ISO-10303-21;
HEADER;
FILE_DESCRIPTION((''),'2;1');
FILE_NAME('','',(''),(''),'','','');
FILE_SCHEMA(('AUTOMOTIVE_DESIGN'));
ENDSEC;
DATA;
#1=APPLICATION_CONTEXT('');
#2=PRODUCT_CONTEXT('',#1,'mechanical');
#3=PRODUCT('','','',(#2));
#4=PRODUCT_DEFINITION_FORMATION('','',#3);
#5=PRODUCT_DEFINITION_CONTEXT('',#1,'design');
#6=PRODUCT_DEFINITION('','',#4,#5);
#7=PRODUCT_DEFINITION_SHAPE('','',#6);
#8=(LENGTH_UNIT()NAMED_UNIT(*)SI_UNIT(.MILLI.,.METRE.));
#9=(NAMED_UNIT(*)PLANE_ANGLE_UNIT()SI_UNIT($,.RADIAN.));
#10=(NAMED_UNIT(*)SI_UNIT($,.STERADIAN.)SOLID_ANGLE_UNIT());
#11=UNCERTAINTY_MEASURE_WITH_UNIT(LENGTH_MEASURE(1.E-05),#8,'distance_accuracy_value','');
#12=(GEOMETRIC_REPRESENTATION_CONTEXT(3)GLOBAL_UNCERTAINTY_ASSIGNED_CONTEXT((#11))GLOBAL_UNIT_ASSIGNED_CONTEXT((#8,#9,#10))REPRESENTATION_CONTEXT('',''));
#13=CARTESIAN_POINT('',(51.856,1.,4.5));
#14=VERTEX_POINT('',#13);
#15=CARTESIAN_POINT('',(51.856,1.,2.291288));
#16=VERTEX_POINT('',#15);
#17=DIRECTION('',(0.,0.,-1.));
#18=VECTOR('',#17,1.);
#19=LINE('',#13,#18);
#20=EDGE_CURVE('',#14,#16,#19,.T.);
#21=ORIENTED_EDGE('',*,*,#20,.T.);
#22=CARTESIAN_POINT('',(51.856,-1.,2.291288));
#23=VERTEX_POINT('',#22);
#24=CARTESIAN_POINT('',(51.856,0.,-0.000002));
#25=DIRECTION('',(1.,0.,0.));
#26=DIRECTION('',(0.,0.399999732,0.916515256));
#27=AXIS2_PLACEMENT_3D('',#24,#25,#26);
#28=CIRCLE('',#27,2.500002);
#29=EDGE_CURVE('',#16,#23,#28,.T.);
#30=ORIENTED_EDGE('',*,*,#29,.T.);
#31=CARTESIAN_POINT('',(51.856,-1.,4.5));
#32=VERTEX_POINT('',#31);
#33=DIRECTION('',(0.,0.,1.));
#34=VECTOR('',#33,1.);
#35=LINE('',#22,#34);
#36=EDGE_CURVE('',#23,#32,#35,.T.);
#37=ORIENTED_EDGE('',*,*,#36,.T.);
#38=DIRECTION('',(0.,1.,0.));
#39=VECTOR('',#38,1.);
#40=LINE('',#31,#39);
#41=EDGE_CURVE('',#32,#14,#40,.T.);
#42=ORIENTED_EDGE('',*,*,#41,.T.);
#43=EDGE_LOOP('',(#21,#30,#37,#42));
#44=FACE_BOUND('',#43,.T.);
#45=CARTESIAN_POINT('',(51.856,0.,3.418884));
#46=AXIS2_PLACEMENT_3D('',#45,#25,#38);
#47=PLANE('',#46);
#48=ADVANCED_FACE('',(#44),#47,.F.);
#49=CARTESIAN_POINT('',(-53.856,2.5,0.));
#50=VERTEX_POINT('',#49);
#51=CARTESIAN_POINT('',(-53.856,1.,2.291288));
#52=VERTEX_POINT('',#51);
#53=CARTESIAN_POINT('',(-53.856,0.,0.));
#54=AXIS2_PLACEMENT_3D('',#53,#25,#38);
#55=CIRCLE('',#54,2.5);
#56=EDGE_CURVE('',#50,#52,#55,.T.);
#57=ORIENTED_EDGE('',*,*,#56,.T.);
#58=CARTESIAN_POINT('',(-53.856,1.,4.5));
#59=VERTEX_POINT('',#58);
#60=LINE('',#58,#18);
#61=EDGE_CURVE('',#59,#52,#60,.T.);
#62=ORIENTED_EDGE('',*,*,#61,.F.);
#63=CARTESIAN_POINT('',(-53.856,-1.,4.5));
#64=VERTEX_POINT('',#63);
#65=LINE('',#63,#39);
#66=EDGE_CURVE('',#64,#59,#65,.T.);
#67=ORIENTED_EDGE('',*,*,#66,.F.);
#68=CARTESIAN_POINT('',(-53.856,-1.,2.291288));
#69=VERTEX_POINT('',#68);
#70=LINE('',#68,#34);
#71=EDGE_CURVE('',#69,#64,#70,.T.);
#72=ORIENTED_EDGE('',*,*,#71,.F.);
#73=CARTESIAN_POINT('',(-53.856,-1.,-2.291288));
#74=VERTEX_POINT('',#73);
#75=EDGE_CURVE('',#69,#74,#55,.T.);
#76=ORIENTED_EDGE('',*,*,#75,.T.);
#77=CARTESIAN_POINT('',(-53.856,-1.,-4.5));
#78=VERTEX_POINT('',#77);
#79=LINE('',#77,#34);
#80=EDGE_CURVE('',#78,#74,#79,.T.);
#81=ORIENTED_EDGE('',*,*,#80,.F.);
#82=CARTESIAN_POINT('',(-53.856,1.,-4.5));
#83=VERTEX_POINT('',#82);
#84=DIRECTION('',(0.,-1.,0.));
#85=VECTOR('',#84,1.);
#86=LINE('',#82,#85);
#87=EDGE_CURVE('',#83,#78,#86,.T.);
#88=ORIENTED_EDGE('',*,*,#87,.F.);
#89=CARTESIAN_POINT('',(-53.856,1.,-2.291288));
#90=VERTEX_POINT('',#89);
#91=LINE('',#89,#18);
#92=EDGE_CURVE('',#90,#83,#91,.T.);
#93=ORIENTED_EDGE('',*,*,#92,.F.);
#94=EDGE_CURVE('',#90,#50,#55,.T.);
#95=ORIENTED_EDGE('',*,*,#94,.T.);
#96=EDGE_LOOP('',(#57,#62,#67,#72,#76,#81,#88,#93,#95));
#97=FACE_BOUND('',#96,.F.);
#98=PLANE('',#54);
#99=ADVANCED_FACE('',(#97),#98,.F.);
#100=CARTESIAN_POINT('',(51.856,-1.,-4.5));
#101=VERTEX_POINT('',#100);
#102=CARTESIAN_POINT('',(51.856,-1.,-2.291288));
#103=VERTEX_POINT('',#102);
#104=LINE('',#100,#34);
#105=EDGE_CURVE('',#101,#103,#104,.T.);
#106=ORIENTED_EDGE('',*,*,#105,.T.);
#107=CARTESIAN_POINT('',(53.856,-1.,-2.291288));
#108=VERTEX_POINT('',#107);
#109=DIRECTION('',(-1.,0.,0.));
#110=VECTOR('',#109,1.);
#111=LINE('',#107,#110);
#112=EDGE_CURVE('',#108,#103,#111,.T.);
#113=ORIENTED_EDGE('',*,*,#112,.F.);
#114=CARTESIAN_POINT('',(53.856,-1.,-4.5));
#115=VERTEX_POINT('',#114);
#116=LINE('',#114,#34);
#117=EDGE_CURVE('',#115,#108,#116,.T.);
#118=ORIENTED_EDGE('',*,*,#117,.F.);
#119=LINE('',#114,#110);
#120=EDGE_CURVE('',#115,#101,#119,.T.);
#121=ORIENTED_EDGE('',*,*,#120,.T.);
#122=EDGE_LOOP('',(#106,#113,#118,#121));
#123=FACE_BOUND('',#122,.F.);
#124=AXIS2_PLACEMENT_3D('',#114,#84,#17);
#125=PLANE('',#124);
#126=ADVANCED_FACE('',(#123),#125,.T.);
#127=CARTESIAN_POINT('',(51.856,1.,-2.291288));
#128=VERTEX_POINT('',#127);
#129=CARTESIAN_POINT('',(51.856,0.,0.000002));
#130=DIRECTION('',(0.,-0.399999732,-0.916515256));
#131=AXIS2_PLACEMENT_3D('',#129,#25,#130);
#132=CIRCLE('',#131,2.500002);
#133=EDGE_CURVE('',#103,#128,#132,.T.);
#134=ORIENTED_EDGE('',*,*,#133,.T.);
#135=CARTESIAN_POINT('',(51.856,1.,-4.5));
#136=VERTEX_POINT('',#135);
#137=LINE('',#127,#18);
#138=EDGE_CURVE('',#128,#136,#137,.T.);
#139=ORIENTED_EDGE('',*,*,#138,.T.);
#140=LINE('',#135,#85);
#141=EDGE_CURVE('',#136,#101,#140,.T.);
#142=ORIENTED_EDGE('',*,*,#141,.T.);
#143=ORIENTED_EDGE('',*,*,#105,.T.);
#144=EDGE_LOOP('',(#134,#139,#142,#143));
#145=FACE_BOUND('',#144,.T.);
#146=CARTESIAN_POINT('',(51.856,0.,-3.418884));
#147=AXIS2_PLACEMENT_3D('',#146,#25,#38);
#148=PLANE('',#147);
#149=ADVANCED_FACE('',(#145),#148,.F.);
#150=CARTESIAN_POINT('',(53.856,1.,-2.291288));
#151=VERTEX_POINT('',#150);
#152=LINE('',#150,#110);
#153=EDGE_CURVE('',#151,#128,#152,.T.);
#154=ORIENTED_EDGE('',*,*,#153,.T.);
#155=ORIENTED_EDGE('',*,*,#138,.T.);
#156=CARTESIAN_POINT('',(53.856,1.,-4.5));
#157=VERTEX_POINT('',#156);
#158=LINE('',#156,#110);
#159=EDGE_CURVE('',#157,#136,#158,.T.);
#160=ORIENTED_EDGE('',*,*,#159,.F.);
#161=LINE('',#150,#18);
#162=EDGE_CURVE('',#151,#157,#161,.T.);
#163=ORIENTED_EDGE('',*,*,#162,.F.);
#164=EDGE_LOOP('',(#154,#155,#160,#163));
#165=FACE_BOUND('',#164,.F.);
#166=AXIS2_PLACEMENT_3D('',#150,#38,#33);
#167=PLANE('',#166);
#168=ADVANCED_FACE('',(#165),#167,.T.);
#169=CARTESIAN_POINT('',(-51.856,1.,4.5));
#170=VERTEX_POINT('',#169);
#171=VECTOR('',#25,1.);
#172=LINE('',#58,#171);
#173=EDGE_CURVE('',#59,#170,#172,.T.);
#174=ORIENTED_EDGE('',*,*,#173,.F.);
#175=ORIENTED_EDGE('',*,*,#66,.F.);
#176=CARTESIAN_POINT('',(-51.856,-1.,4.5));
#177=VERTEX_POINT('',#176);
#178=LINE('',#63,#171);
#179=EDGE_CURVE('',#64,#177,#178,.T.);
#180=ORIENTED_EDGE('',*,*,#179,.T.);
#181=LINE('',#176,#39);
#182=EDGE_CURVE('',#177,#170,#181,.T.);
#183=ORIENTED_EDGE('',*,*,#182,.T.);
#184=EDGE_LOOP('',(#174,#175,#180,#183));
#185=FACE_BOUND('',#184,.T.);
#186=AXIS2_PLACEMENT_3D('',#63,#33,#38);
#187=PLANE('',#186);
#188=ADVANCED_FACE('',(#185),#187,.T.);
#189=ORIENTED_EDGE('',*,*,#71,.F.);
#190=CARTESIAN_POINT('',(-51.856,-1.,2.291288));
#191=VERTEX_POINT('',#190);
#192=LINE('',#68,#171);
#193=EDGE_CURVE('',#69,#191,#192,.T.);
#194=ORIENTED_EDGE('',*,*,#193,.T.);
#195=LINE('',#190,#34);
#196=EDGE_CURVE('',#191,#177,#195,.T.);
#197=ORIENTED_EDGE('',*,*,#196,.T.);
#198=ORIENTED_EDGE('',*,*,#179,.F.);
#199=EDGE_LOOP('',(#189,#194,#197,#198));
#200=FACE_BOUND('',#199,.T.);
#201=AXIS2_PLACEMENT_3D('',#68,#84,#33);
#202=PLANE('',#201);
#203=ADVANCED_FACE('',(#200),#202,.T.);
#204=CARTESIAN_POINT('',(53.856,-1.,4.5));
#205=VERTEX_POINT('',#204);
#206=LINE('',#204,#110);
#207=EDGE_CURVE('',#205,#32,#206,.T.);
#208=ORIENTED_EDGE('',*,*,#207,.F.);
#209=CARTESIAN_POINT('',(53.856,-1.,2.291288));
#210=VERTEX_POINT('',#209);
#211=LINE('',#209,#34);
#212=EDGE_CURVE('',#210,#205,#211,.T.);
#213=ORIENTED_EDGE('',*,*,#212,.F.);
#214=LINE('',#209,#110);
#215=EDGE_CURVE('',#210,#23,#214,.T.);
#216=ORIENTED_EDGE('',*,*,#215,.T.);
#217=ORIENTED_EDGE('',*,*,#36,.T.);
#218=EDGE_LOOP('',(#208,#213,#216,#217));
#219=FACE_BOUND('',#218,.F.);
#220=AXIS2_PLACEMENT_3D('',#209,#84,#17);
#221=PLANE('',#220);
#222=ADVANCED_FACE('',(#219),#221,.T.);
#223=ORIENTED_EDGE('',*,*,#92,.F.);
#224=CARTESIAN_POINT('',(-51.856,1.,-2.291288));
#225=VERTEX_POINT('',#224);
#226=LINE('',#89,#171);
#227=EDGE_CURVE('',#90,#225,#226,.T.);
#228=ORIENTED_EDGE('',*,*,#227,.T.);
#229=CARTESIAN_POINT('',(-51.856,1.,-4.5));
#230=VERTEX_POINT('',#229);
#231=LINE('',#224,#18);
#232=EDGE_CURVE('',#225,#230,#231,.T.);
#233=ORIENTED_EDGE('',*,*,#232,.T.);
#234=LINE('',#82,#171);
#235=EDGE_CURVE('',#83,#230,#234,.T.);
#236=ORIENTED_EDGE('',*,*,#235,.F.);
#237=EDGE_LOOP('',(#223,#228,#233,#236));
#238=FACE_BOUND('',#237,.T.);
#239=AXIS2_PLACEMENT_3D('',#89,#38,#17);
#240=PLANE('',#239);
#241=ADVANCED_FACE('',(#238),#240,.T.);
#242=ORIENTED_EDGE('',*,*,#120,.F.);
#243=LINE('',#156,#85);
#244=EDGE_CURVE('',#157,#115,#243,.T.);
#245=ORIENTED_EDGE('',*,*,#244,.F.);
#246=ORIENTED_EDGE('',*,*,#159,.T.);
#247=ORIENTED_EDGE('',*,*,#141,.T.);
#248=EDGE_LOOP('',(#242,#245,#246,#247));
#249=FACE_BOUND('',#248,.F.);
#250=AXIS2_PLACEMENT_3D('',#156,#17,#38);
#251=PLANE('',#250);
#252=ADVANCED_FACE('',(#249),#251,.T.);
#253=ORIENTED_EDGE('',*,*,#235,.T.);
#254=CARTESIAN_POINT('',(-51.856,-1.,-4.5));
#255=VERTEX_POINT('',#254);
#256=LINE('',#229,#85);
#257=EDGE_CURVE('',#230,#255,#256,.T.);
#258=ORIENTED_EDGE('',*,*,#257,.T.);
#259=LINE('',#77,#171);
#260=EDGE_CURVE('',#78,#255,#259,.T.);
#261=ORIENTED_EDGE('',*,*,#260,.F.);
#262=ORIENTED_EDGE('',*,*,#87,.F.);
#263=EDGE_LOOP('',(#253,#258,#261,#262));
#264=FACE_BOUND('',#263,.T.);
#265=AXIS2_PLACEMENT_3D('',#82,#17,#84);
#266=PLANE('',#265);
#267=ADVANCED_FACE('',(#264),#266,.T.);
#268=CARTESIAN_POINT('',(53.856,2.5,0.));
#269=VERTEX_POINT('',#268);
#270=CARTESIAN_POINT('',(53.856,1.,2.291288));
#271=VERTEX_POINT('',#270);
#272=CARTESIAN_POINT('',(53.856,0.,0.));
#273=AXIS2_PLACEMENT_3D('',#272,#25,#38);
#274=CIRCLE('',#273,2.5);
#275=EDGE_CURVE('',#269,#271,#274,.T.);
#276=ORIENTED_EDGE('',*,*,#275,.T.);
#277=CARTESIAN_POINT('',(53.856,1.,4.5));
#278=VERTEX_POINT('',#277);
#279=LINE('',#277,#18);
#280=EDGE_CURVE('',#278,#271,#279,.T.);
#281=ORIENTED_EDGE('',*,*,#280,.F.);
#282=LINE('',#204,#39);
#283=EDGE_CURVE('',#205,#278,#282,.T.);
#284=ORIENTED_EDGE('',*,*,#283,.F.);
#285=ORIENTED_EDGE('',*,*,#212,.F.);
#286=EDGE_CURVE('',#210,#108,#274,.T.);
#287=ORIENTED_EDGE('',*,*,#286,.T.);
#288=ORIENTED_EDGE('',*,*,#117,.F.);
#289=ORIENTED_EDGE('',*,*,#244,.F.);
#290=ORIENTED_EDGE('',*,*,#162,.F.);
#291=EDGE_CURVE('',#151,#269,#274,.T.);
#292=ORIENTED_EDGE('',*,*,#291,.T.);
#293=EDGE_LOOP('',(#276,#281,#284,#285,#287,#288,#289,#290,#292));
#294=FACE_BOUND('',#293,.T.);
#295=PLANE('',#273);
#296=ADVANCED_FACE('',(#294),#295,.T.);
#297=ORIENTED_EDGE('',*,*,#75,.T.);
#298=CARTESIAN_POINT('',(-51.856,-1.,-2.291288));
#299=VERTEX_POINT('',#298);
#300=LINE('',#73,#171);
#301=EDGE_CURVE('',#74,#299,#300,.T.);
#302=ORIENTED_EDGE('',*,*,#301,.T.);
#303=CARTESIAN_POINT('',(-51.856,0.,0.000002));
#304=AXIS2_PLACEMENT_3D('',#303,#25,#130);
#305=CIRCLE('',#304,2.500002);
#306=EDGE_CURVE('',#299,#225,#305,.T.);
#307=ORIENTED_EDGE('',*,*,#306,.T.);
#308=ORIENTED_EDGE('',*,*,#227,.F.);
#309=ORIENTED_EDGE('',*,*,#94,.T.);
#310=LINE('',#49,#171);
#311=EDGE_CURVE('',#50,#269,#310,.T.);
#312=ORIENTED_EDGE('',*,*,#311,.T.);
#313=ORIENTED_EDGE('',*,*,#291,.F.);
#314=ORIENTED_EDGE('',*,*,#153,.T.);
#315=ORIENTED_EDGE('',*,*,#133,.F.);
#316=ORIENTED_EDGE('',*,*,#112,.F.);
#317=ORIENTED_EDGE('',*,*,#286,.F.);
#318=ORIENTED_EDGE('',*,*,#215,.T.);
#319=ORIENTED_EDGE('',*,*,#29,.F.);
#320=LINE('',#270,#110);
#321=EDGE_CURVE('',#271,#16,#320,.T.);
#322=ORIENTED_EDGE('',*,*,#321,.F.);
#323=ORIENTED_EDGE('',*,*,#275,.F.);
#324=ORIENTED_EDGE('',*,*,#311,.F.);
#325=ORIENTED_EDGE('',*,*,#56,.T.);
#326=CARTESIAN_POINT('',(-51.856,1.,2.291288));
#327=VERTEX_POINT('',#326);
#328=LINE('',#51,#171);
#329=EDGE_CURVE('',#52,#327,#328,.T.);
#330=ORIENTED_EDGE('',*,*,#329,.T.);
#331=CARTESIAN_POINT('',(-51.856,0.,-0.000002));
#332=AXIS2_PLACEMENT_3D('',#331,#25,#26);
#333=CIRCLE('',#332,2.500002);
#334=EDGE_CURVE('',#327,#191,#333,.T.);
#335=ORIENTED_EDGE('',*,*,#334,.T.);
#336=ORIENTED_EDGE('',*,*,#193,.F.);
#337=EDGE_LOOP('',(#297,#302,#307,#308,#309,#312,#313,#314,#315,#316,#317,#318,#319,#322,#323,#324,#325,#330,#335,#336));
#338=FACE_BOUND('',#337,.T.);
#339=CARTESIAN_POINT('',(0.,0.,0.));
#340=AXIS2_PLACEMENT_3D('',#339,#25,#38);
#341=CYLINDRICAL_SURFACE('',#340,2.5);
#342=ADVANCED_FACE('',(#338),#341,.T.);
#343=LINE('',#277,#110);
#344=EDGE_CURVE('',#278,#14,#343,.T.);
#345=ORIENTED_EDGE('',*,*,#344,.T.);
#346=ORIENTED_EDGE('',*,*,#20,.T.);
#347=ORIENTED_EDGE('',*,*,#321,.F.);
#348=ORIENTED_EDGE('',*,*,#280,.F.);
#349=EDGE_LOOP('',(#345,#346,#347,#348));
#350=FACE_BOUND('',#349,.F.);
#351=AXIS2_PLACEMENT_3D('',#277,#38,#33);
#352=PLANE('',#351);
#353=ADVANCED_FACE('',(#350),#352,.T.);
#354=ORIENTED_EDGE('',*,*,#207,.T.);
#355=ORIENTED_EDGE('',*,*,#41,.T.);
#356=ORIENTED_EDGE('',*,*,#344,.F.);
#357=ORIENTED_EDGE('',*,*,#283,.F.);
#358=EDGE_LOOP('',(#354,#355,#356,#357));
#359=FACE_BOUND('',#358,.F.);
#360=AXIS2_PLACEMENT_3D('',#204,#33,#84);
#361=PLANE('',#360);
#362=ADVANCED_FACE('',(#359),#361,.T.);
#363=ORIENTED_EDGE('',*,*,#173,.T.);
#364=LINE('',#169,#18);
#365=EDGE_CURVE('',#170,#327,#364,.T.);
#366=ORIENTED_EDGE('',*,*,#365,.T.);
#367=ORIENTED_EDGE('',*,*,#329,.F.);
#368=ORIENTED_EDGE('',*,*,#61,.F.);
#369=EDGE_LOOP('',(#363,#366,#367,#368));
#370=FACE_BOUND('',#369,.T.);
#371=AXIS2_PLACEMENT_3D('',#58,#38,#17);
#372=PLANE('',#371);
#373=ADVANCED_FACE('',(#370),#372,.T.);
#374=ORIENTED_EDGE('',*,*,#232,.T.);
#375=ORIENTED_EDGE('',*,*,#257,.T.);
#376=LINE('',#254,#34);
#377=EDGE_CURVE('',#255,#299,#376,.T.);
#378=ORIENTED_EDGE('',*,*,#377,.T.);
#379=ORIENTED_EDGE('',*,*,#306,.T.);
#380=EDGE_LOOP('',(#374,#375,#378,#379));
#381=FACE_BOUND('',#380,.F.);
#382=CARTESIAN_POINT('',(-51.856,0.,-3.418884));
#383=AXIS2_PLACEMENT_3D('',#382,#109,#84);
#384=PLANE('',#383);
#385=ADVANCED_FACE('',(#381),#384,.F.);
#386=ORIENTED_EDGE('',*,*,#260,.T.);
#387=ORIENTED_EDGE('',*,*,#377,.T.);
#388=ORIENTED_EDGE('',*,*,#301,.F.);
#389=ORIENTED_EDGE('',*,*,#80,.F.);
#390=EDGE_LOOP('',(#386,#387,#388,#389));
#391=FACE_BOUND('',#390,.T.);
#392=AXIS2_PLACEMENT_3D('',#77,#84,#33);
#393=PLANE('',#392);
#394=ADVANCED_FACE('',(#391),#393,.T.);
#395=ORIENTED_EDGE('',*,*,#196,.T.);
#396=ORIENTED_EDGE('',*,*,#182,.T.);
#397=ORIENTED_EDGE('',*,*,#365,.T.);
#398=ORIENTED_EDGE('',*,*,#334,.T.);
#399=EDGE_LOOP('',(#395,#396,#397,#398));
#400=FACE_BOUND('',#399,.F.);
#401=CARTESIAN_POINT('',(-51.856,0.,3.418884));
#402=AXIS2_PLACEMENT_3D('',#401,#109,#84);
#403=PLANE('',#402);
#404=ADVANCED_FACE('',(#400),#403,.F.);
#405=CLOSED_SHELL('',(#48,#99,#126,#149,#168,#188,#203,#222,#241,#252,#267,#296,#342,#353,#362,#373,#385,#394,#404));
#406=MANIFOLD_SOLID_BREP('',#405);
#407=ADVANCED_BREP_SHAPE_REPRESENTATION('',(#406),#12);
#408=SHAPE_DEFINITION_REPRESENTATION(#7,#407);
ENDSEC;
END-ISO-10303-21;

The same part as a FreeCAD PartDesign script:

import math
import FreeCAD as App
import Part
import Sketcher

doc = App.newDocument("Part")
body = doc.addObject("PartDesign::Body", "Body")

sketch1 = body.newObject("Sketcher::SketchObject", "Sketch")
sketch1.AttachmentSupport = (doc.getObject("YZ_Plane"), [""])
sketch1.MapMode = "FlatFace"
sketch1.addGeometry(Part.Circle(App.Vector(0, 0, 0), App.Vector(0, 0, 1), 2.5), False)
sketch1.addConstraint([
    Sketcher.Constraint("Coincident", 0, 3, -1, 1),
    Sketcher.Constraint("Diameter", 0, 5.0),
])
pad1 = body.newObject("PartDesign::Pad", "Pad")
pad1.Profile = sketch1
pad1.Length = 107.712
pad1.Midplane = True

sketch2 = body.newObject("Sketcher::SketchObject", "Sketch001")
sketch2.AttachmentSupport = (doc.getObject("YZ_Plane"), [""])
sketch2.MapMode = "FlatFace"
sketch2.AttachmentOffset = App.Placement(App.Vector(0, 0, -53.856), App.Rotation())
sketch2.addGeometry([
    Part.ArcOfCircle(Part.Circle(App.Vector(0, 0, 0), App.Vector(0, 0, 1), 2.5), math.radians(66), math.radians(114)),
    Part.LineSegment(App.Vector(-1, 2.3, 0), App.Vector(-1, 4.5, 0)),
    Part.LineSegment(App.Vector(-1, 4.5, 0), App.Vector(1, 4.5, 0)),
    Part.LineSegment(App.Vector(1, 4.5, 0), App.Vector(1, 2.3, 0)),
    Part.LineSegment(App.Vector(1, -4.5, 0), App.Vector(-1, -4.5, 0)),
    Part.LineSegment(App.Vector(-1, -4.5, 0), App.Vector(-1, -2.3, 0)),
    Part.ArcOfCircle(Part.Circle(App.Vector(0, 0, 0), App.Vector(0, 0, 1), 2.5), math.radians(-114), math.radians(-66)),
    Part.LineSegment(App.Vector(1, -2.3, 0), App.Vector(1, -4.5, 0)),
], False)
sketch2.addConstraint([
    Sketcher.Constraint("Coincident", 0, 2, 1, 1),
    Sketcher.Constraint("Coincident", 1, 2, 2, 1),
    Sketcher.Constraint("Coincident", 2, 2, 3, 1),
    Sketcher.Constraint("Coincident", 3, 2, 0, 1),
    Sketcher.Constraint("Coincident", 4, 2, 5, 1),
    Sketcher.Constraint("Coincident", 5, 2, 6, 1),
    Sketcher.Constraint("Coincident", 6, 2, 7, 1),
    Sketcher.Constraint("Coincident", 7, 2, 4, 1),
    Sketcher.Constraint("Vertical", 1),
    Sketcher.Constraint("Horizontal", 2),
    Sketcher.Constraint("Vertical", 3),
    Sketcher.Constraint("Horizontal", 4),
    Sketcher.Constraint("Vertical", 5),
    Sketcher.Constraint("Vertical", 7),
    Sketcher.Constraint("Coincident", 0, 3, -1, 1),
    Sketcher.Constraint("Coincident", 6, 3, -1, 1),
    Sketcher.Constraint("Equal", 0, 6),
    Sketcher.Constraint("Symmetric", 2, 2, 4, 2, -1, 1),
    Sketcher.Constraint("Horizontal", 0, 2, 3, 2),
    Sketcher.Constraint("Horizontal", 5, 2, 6, 2),
    Sketcher.Constraint("Radius", 0, 2.500002),
    Sketcher.Constraint("DistanceX", 2, 1, 2, 2, 2.0),
    Sketcher.Constraint("DistanceY", 4, 2, 1, 2, 9.0),
])
pad2 = body.newObject("PartDesign::Pad", "Pad001")
pad2.Profile = sketch2
pad2.Length = 2
body2 = doc.addObject("PartDesign::Body", "Body001")
doc.recompute()

body2.BaseFeature = body
doc.recompute()

mirroring = doc.addObject("Part::Mirroring", "Mirroring")
mirroring.Source = body
mirroring.Base = App.Vector(0, 0, 0)
mirroring.Normal = App.Vector(1, 0, 0)
body3 = doc.addObject("PartDesign::Body", "Body002")
body3.BaseFeature = mirroring
boolean = body2.newObject("PartDesign::Boolean", "Boolean")
boolean.Type = "Fuse"
boolean.addObjects([body3])
doc.recompute()
mirroring.Visibility = False

doc.recompute()
